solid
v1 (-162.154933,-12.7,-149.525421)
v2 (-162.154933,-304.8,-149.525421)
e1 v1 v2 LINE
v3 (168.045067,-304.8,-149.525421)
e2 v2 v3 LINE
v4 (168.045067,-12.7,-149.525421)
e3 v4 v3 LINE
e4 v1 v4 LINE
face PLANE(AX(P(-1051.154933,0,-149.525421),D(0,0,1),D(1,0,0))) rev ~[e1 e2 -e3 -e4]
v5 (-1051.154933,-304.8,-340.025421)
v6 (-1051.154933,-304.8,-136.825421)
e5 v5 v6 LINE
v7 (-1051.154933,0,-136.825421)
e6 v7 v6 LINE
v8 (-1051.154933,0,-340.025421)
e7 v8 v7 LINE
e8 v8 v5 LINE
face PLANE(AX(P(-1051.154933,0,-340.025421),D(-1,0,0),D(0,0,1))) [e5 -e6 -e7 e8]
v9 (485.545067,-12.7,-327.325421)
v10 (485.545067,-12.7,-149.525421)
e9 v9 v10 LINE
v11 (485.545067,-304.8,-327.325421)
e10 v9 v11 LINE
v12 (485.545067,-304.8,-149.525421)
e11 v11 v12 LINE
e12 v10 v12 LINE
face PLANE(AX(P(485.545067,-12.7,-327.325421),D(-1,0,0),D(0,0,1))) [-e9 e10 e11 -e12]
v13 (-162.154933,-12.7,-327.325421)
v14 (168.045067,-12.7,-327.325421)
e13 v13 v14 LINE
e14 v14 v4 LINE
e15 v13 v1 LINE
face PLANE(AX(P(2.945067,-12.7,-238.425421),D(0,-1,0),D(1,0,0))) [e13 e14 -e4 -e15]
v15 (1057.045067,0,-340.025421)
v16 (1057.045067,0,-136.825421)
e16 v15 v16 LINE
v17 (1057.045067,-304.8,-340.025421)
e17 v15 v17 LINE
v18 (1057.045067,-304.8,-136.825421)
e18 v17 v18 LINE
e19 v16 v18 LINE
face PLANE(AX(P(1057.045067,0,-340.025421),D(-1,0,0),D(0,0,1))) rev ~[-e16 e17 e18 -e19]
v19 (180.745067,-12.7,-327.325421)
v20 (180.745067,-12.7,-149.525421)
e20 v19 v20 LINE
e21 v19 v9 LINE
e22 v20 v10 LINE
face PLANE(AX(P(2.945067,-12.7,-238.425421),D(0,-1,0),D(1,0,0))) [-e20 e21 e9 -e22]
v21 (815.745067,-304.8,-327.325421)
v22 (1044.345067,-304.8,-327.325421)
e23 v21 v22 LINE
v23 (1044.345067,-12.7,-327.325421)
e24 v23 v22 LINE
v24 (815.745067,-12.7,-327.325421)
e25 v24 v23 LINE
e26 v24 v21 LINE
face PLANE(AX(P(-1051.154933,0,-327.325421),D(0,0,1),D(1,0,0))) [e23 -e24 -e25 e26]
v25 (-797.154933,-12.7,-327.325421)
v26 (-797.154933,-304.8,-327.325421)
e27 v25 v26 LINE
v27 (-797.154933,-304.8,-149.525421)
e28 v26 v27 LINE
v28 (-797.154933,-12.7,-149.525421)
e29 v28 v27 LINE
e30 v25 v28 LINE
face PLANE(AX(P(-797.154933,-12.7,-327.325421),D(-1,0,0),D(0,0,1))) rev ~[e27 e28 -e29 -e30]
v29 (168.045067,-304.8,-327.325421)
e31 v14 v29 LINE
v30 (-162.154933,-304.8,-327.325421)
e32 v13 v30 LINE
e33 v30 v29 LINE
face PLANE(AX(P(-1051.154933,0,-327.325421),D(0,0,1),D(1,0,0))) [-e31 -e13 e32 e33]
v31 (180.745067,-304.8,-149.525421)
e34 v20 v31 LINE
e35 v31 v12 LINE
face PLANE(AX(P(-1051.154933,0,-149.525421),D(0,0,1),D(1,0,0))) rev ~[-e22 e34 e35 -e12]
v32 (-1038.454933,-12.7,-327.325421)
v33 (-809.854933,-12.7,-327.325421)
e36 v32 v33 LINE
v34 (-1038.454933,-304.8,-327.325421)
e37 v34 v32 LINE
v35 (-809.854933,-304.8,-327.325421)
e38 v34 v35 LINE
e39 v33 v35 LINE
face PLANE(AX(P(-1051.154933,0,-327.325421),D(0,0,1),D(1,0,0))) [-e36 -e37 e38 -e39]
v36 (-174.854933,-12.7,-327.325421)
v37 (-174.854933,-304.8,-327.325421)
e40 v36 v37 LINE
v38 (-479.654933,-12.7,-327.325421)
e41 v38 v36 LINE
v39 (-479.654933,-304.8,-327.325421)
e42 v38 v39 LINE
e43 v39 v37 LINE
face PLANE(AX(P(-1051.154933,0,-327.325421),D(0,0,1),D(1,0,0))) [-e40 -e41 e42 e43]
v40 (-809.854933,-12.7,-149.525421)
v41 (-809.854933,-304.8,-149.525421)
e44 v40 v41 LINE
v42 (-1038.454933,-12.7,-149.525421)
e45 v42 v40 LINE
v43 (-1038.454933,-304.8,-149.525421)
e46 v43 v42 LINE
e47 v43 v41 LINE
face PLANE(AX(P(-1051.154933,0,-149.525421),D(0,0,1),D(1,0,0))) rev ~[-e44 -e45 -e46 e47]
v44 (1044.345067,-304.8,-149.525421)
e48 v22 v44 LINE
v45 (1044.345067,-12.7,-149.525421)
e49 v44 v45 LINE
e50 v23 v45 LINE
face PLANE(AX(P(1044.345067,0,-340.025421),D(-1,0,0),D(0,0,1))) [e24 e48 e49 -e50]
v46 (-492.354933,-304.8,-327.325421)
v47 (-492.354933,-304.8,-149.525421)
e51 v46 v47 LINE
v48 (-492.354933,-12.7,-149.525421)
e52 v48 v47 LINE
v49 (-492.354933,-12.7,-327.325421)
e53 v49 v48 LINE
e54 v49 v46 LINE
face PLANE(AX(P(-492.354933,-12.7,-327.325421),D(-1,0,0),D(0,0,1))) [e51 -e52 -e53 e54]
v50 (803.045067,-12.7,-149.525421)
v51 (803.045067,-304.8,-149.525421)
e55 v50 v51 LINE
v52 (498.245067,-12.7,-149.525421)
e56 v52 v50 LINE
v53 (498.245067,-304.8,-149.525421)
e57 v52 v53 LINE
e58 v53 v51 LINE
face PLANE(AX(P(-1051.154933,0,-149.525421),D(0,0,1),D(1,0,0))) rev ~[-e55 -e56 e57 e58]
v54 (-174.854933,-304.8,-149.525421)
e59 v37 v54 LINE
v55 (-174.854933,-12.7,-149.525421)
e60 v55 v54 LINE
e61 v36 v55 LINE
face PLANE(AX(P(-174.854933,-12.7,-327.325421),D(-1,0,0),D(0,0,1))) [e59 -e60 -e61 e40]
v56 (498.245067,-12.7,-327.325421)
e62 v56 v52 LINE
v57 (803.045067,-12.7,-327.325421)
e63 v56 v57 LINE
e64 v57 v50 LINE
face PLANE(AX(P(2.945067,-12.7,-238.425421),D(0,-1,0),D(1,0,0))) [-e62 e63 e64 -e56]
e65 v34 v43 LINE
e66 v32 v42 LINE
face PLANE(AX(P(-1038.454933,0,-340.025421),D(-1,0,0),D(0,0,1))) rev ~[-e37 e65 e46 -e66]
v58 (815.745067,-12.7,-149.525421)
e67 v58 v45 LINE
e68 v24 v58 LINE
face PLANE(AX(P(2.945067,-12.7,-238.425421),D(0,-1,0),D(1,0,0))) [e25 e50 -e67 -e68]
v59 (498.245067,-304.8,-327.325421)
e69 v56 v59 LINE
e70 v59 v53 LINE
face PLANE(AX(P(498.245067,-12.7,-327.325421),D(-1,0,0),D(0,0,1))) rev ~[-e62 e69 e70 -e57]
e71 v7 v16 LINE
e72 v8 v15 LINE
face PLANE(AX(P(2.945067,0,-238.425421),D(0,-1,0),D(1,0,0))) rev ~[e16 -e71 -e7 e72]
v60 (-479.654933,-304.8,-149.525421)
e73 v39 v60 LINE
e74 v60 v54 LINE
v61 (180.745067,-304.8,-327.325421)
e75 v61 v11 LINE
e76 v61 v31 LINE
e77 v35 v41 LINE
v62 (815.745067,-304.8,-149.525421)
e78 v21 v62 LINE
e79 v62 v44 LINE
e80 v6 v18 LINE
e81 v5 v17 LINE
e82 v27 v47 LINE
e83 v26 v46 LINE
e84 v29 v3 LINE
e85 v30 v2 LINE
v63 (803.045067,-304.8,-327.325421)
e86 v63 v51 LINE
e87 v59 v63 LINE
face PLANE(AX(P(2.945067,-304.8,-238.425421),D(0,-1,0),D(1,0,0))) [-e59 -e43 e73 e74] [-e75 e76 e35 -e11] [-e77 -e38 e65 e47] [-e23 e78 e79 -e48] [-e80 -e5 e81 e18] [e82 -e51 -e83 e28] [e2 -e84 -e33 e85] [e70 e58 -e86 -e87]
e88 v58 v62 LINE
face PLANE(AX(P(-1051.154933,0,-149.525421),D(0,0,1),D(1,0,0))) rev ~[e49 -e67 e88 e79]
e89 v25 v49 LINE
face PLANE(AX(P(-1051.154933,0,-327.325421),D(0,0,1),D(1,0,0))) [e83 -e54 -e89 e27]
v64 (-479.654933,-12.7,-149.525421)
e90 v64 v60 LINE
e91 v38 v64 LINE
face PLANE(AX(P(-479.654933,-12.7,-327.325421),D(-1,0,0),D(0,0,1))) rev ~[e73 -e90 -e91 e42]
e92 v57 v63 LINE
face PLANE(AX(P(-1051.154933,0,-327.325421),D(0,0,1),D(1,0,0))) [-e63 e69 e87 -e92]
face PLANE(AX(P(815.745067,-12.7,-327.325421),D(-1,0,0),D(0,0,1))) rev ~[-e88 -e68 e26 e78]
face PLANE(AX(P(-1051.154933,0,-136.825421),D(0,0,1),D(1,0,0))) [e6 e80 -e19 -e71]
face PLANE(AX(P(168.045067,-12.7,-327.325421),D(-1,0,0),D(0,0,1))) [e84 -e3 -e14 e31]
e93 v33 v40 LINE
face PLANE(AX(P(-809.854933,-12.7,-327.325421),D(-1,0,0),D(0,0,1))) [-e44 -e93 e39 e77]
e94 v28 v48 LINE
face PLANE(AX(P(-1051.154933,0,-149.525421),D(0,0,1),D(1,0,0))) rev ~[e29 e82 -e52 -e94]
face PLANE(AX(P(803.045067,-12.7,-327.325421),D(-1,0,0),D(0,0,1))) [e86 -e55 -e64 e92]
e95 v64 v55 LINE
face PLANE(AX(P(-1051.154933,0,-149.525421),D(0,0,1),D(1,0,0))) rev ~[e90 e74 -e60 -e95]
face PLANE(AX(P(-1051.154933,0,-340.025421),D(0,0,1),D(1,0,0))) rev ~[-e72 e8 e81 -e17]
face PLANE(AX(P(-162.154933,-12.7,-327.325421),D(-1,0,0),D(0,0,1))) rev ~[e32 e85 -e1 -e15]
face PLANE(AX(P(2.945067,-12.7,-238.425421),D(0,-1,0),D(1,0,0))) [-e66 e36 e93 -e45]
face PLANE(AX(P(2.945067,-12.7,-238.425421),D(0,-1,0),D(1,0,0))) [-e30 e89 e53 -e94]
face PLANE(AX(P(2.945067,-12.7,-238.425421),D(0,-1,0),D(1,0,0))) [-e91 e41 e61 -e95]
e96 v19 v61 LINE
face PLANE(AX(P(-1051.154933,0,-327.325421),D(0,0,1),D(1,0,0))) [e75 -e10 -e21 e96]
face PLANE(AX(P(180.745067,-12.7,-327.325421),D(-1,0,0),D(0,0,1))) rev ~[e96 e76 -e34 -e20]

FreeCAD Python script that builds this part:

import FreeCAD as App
import Part
import Sketcher
Q = App.Units.Quantity


def faces_at(feature, points):
    """Names of the faces that lie closest to the given points."""
    faces = feature.Shape.Faces
    near = lambda p: min(range(len(faces)), key=lambda i: faces[i].distToShape(Part.Vertex(*p))[0])
    return sorted({f"Face{near(p) + 1}" for p in points})


def add_polygon(sketch, points):
    """Adds a closed chain of lines whose ends are joined by coincident constraints."""
    first, n = sketch.GeometryCount, len(points)
    for a, b in zip(points, points[1:] + points[:1]):
        sketch.addGeometry(Part.LineSegment(App.Vector(*a, 0), App.Vector(*b, 0)), False)
    for i in range(n):
        sketch.addConstraint(Sketcher.Constraint("Coincident", first + i, 2, first + (i + 1) % n, 1))

doc = App.newDocument("Part")
params = doc.addObject("Spreadsheet::Sheet", "Params")
for row, (alias, value) in enumerate([
    ("sketch1_width", "83 in"),
    ("sketch1_height", "8 in"),
    ("pad1_length", "12 in"),
    ("thickness_wall", "0.5 in"),
    ("sketch2_height", "7 in"),
    ("sketch2_width", "0.5 in"),
    ("pad2_length", "11.5 in"),
], start=1):
    params.set(f"A{row}", alias)
    params.set(f"B{row}", "=" + value)
    params.setAlias(f"B{row}", alias)

body = doc.addObject("PartDesign::Body", "Body")

# Sketch on XZ plane
sketch1 = body.newObject("Sketcher::SketchObject", "Sketch")
sketch1.AttachmentSupport = (doc.getObject("XZ_Plane"), [""])
sketch1.MapMode = "FlatFace"
add_polygon(sketch1, [(-1051, -137), (-1051, -340), (1057, -340), (1057, -137)])  # lines 0-3
sketch1.addConstraint([
    Sketcher.Constraint("Vertical", 0),
    Sketcher.Constraint("Horizontal", 1),
    Sketcher.Constraint("Vertical", 2),
    Sketcher.Constraint("Horizontal", 3),
    Sketcher.Constraint("DistanceX", 1, 1, 1, 2, Q("83 in")),
    Sketcher.Constraint("DistanceY", 0, 2, 0, 1, Q("8 in")),
    Sketcher.Constraint("DistanceY", 0, 2, -1, 1, 340.025421),
    Sketcher.Constraint("DistanceX", 0, 2, -1, 1, 1051.154933),
])
sketch1.setExpression("Constraints[8]", "Params.sketch1_width")
sketch1.setExpression("Constraints[9]", "Params.sketch1_height")
pad1 = body.newObject("PartDesign::Pad", "Pad")
pad1.Profile = sketch1
pad1.setExpression("Length", "Params.pad1_length")
doc.recompute()

thickness = body.newObject("PartDesign::Thickness", "Thickness")
thickness.Base = (pad1, faces_at(pad1, [(2.945, -304.8, -238.425)]))
thickness.setExpression("Value", "Params.thickness_wall")
thickness.Reversed = True
thickness.Join = "Arc"

# Sketch on XZ plane
sketch2 = body.newObject("Sketcher::SketchObject", "Sketch001")
sketch2.AttachmentSupport = (doc.getObject("XZ_Plane"), [""])
sketch2.MapMode = "FlatFace"
sketch2.AttachmentOffset = App.Placement(App.Vector(0, 0, 0.5 * 25.4), App.Rotation())
add_polygon(sketch2, [(-810, -150), (-810, -327), (-797, -327), (-797, -150)])  # lines 0-3
add_polygon(sketch2, [(-492, -150), (-492, -327), (-480, -327), (-480, -150)])  # lines 4-7
add_polygon(sketch2, [(-175, -150), (-175, -327), (-162, -327), (-162, -150)])  # lines 8-11
add_polygon(sketch2, [(168, -150), (168, -327), (181, -327), (181, -150)])  # lines 12-15
add_polygon(sketch2, [(486, -150), (486, -327), (498, -327), (498, -150)])  # lines 16-19
add_polygon(sketch2, [(803, -150), (803, -327), (816, -327), (816, -150)])  # lines 20-23
sketch2.addConstraint([
    Sketcher.Constraint("Vertical", 0),
    Sketcher.Constraint("Horizontal", 1),
    Sketcher.Constraint("Vertical", 2),
    Sketcher.Constraint("Horizontal", 3),
    Sketcher.Constraint("Vertical", 4),
    Sketcher.Constraint("Horizontal", 5),
    Sketcher.Constraint("Vertical", 6),
    Sketcher.Constraint("Horizontal", 7),
    Sketcher.Constraint("Vertical", 8),
    Sketcher.Constraint("Horizontal", 9),
    Sketcher.Constraint("Vertical", 10),
    Sketcher.Constraint("Horizontal", 11),
    Sketcher.Constraint("Vertical", 12),
    Sketcher.Constraint("Horizontal", 13),
    Sketcher.Constraint("Vertical", 14),
    Sketcher.Constraint("Horizontal", 15),
    Sketcher.Constraint("Vertical", 16),
    Sketcher.Constraint("Horizontal", 17),
    Sketcher.Constraint("Vertical", 18),
    Sketcher.Constraint("Horizontal", 19),
    Sketcher.Constraint("Vertical", 20),
    Sketcher.Constraint("Horizontal", 21),
    Sketcher.Constraint("Vertical", 22),
    Sketcher.Constraint("Horizontal", 23),
    Sketcher.Constraint("Horizontal", 1, 2, 4, 2),
    Sketcher.Constraint("Horizontal", 3, 2, 6, 2),
    Sketcher.Constraint("Horizontal", 5, 2, 8, 2),
    Sketcher.Constraint("Horizontal", 7, 2, 10, 2),
    Sketcher.Constraint("Horizontal", 9, 2, 12, 2),
    Sketcher.Constraint("Horizontal", 11, 2, 14, 2),
    Sketcher.Constraint("Horizontal", 13, 2, 16, 2),
    Sketcher.Constraint("Horizontal", 15, 2, 18, 2),
    Sketcher.Constraint("Horizontal", 17, 2, 20, 2),
    Sketcher.Constraint("Horizontal", 19, 2, 22, 2),
    Sketcher.Constraint("Equal", 3, 5),
    Sketcher.Constraint("Equal", 7, 9),
    Sketcher.Constraint("Equal", 11, 13),
    Sketcher.Constraint("Equal", 15, 17),
    Sketcher.Constraint("Equal", 19, 21),
    Sketcher.Constraint("DistanceY", 0, 2, 0, 1, Q("7 in")),
    Sketcher.Constraint("DistanceX", 1, 1, 1, 2, Q("0.5 in")),
    Sketcher.Constraint("DistanceX", 1, 2, 4, 2, Q("12 in")),
    Sketcher.Constraint("DistanceX", 5, 2, 8, 2, Q("12 in")),
    Sketcher.Constraint("DistanceX", 9, 2, 12, 2, Q("13 in")),
    Sketcher.Constraint("DistanceX", 13, 2, 16, 2, Q("12 in")),
    Sketcher.Constraint("DistanceX", 17, 2, 20, 2, Q("12 in")),
    Sketcher.Constraint("DistanceY", 0, 2, -1, 1, 327.325421),
    Sketcher.Constraint("DistanceX", 0, 2, -1, 1, 809.854933),
])
sketch2.setExpression("Constraints[63]", "Params.sketch2_height")
sketch2.setExpression("Constraints[64]", "Params.sketch2_width")
pad2 = body.newObject("PartDesign::Pad", "Pad001")
pad2.Profile = sketch2
pad2.setExpression("Length", "Params.pad2_length")

doc.recompute()
